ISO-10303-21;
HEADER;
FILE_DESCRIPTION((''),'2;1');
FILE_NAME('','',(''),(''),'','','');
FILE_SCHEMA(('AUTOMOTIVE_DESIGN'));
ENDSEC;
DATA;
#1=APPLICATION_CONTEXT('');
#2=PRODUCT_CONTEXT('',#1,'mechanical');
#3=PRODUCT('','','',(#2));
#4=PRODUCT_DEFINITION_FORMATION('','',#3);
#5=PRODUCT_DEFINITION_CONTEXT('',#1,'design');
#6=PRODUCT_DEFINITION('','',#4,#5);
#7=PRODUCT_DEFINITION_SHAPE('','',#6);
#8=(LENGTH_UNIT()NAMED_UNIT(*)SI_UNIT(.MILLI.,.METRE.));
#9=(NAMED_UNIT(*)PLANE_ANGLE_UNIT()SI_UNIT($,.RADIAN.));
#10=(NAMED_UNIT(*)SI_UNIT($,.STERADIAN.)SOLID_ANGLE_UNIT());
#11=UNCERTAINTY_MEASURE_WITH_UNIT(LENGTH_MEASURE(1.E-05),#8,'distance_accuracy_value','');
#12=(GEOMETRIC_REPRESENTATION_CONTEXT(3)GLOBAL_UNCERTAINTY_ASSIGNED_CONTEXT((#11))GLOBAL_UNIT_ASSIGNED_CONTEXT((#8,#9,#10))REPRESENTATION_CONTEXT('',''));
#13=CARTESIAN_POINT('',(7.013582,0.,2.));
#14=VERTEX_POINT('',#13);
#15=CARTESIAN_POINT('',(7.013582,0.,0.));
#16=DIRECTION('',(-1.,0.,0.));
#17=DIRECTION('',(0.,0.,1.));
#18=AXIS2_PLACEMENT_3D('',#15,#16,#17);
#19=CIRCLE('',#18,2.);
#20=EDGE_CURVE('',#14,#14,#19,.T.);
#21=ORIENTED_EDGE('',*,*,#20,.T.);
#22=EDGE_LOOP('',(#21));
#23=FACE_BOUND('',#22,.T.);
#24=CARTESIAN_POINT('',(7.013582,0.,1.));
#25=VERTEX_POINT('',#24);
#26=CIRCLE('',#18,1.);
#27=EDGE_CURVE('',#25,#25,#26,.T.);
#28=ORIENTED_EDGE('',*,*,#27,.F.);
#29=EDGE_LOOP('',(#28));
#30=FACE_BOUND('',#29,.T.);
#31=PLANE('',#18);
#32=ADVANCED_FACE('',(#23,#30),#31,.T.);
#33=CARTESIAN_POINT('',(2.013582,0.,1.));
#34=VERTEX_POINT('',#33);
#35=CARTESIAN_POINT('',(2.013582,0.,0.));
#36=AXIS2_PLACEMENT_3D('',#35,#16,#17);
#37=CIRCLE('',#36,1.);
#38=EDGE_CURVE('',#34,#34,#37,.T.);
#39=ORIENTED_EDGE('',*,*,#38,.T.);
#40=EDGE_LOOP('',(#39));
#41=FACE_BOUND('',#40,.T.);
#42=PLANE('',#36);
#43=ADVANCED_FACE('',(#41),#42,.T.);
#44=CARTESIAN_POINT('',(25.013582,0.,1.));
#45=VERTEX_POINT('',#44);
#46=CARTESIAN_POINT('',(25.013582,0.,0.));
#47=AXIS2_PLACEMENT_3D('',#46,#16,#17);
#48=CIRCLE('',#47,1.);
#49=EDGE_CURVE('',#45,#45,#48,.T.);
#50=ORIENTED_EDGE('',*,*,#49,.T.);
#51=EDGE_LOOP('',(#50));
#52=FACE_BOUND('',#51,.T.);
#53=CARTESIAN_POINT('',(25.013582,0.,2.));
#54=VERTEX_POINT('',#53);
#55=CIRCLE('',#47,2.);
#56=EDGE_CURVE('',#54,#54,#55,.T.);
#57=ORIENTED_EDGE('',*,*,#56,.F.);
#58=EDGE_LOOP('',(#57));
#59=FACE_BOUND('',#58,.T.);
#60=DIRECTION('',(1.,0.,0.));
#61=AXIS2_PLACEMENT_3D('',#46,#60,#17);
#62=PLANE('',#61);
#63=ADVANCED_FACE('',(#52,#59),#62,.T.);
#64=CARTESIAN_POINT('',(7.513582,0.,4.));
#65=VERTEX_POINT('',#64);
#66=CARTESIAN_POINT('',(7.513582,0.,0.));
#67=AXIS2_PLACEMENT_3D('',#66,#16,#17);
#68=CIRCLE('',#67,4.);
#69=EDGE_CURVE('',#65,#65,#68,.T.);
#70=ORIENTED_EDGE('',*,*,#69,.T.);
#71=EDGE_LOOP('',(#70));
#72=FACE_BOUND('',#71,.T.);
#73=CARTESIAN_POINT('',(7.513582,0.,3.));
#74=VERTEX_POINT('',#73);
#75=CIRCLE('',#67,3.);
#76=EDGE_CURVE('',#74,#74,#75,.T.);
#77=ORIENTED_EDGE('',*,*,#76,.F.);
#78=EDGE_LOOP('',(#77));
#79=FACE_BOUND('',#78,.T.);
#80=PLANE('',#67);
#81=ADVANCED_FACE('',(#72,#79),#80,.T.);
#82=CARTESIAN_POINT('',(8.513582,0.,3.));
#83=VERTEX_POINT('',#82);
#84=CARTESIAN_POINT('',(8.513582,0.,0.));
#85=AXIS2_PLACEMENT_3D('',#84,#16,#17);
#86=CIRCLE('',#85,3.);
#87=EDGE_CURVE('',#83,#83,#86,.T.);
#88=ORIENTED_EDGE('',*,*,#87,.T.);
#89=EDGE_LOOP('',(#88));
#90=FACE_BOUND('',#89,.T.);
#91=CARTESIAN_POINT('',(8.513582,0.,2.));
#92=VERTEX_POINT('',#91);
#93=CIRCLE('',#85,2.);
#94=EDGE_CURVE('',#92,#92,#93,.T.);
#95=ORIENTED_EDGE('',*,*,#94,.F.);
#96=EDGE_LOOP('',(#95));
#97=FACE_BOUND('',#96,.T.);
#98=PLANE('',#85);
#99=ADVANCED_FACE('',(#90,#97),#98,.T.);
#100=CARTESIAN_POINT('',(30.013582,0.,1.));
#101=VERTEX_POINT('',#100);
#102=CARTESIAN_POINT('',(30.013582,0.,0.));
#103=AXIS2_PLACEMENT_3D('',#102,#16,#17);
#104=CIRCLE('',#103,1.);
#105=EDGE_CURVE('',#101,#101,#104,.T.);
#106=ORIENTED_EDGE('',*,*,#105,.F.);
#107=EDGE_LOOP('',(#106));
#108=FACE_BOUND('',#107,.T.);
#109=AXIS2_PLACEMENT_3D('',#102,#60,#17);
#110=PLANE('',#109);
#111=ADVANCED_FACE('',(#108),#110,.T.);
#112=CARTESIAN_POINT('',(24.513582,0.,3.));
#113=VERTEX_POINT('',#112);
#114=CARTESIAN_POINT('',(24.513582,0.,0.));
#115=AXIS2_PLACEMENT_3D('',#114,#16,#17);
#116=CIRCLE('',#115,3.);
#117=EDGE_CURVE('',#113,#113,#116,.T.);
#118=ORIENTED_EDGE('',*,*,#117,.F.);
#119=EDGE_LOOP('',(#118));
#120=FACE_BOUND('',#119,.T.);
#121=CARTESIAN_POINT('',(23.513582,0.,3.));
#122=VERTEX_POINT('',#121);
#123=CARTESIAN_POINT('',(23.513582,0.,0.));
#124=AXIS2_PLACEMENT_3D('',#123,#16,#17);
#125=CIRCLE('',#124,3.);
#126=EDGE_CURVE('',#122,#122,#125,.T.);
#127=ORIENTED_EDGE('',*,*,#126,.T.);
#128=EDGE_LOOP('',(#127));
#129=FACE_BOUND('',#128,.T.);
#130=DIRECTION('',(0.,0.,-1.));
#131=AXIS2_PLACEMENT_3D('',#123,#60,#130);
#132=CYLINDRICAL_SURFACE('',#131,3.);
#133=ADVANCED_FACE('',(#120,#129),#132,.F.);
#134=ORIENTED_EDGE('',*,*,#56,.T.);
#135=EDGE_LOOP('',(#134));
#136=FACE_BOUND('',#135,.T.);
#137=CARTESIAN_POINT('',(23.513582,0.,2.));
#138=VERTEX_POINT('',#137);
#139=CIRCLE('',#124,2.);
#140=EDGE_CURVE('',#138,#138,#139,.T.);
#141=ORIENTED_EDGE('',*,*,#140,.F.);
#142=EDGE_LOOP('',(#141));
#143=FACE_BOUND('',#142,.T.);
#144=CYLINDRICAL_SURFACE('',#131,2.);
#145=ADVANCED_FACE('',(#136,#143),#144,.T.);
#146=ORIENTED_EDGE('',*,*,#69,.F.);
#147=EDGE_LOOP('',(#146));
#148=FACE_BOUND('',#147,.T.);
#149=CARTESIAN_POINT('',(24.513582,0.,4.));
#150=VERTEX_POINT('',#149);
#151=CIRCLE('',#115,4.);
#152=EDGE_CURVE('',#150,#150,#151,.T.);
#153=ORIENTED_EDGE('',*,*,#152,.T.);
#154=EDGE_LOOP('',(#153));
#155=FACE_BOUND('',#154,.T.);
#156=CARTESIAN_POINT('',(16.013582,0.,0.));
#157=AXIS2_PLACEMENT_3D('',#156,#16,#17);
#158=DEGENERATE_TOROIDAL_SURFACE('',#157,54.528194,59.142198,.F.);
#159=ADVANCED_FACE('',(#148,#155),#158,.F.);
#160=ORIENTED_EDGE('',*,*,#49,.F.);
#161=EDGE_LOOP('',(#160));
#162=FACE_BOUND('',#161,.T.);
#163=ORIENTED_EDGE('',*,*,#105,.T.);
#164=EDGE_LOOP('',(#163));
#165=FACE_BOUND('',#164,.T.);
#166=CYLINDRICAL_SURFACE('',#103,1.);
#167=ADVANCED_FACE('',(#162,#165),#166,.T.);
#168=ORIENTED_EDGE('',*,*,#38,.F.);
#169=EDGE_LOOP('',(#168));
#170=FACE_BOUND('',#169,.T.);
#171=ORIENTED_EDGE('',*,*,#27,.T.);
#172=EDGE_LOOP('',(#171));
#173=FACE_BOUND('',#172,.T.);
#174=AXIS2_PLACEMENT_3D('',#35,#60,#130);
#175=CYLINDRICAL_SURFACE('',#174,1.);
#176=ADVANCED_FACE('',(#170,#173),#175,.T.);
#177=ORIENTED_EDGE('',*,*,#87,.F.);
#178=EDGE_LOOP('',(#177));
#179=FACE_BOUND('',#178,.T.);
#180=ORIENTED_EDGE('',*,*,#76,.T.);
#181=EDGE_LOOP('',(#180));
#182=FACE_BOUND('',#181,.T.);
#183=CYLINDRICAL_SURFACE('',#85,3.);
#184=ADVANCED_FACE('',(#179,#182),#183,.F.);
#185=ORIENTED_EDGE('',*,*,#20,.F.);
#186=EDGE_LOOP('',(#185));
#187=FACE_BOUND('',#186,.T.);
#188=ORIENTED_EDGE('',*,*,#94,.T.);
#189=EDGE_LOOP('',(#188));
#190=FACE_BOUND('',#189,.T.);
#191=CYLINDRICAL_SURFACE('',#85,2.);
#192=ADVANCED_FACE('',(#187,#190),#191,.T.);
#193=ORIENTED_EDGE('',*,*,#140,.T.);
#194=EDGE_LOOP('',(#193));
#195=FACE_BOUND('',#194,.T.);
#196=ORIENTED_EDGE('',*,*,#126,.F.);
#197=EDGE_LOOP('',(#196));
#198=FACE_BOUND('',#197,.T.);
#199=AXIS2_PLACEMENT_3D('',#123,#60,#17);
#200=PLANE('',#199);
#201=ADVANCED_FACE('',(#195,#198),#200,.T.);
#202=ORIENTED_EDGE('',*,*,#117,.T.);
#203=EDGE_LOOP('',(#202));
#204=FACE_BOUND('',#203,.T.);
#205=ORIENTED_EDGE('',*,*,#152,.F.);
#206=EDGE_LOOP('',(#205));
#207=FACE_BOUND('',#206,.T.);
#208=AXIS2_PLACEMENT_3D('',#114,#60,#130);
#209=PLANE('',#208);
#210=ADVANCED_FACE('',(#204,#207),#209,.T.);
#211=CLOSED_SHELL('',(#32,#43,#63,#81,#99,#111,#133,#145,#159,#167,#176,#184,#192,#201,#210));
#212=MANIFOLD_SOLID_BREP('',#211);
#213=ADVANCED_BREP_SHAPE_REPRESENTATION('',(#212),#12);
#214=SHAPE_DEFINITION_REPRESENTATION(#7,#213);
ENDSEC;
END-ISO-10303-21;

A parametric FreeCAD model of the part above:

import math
import FreeCAD as App
import Part
import Sketcher

V = App.Vector

doc = App.newDocument("Part")
body = doc.addObject("PartDesign::Body", "Body")

# Sketch on XY plane
sketch1 = doc.addObject("Sketcher::SketchObject", "Sketch")
body.addObject(sketch1)
sketch1.AttachmentSupport = (doc.XY_Plane, [""])
sketch1.MapMode = "FlatFace"
sketch1.addGeometry([
    Part.LineSegment(V(7.5, 0, 0), V(7.5, -4, 0)),
    Part.ArcOfCircle(Part.Circle(V(16, 54.5, 0), V(0, 0, 1), 59.1), math.radians(-98.26), math.radians(-81.74)),
    Part.LineSegment(V(24.5, -4, 0), V(24.5, 0, 0)),
    Part.LineSegment(V(24.5, 0, 0), V(7.5, 0, 0)),
], False)
sketch1.addConstraint([
    Sketcher.Constraint("Coincident", 0, 2, 1, 1),
    Sketcher.Constraint("Coincident", 1, 2, 2, 1),
    Sketcher.Constraint("Coincident", 2, 2, 3, 1),
    Sketcher.Constraint("Coincident", 3, 2, 0, 1),
    Sketcher.Constraint("Vertical", 0),
    Sketcher.Constraint("Vertical", 2),
    Sketcher.Constraint("Horizontal", 3),
    Sketcher.Constraint("PointOnObject", 2, 2, -1),
    Sketcher.Constraint("Horizontal", 0, 2, 1, 2),
    Sketcher.Constraint("DistanceX", 3, 2, 3, 1, 17.0),
    Sketcher.Constraint("DistanceY", 0, 2, 0, 1, 4.0),
    Sketcher.Constraint("Radius", 1, 59.142198),
    Sketcher.Constraint("DistanceX", -1, 1, 1, 3, 16.013582),
])
revolution = doc.addObject("PartDesign::Revolution", "Revolution")
body.addObject(revolution)
revolution.Profile = sketch1
revolution.ReferenceAxis = (sketch1, ["H_Axis"])
revolution.Angle = 360

# Sketch on YZ plane
sketch2 = doc.addObject("Sketcher::SketchObject", "Sketch001")
body.addObject(sketch2)
sketch2.AttachmentSupport = (doc.YZ_Plane, [""])
sketch2.MapMode = "FlatFace"
sketch2.AttachmentOffset = App.Placement(V(0, 0, 7.513582), App.Rotation())
sketch2.addGeometry([
    Part.Circle(V(0, 0, 0), V(0, 0, 1), 3),
    Part.Circle(V(0, 0, 0), V(0, 0, 1), 2),
], False)
sketch2.addConstraint([
    Sketcher.Constraint("Coincident", 0, 3, -1, 1),
    Sketcher.Constraint("Coincident", 1, 3, -1, 1),
    Sketcher.Constraint("Diameter", 0, 6.0),
    Sketcher.Constraint("Diameter", 1, 4.0),
])
pocket1 = doc.addObject("PartDesign::Pocket", "Pocket")
body.addObject(pocket1)
pocket1.Profile = sketch2
pocket1.Length = 1
pocket1.Reversed = True

# Sketch on YZ plane
sketch3 = doc.addObject("Sketcher::SketchObject", "Sketch002")
body.addObject(sketch3)
sketch3.AttachmentSupport = (doc.YZ_Plane, [""])
sketch3.MapMode = "FlatFace"
sketch3.AttachmentOffset = App.Placement(V(0, 0, 7.513582), App.Rotation())
sketch3.addGeometry(Part.Circle(V(0, 0, 0), V(0, 0, 1), 2), False)
sketch3.addConstraint([
    Sketcher.Constraint("Coincident", 0, 3, -1, 1),
    Sketcher.Constraint("Diameter", 0, 4.0),
])
pad1 = doc.addObject("PartDesign::Pad", "Pad")
body.addObject(pad1)
pad1.Profile = sketch3
pad1.Length = 0.5
pad1.Reversed = True

# Sketch on YZ plane
sketch4 = doc.addObject("Sketcher::SketchObject", "Sketch003")
body.addObject(sketch4)
sketch4.AttachmentSupport = (doc.YZ_Plane, [""])
sketch4.MapMode = "FlatFace"
sketch4.AttachmentOffset = App.Placement(V(0, 0, 7.013582), App.Rotation())
sketch4.addGeometry(Part.Circle(V(0, 0, 0), V(0, 0, 1), 1), False)
sketch4.addConstraint([
    Sketcher.Constraint("Coincident", 0, 3, -1, 1),
    Sketcher.Constraint("Diameter", 0, 2.0),
])
pad2 = doc.addObject("PartDesign::Pad", "Pad001")
body.addObject(pad2)
pad2.Profile = sketch4
pad2.Length = 5
pad2.Reversed = True
doc.recompute()

datumplane = doc.addObject("PartDesign::Plane", "DatumPlane")
body.addObject(datumplane)
datumplane.AttachmentSupport = (doc.YZ_Plane, [""])
datumplane.MapMode = "FlatFace"
datumplane.AttachmentOffset = App.Placement(V(0, 0, 16.013582), App.Rotation())
mirrored = doc.addObject("PartDesign::Mirrored", "Mirrored")
body.addObject(mirrored)
mirrored.Originals = [pocket1, pad1, pad2]
mirrored.MirrorPlane = (datumplane, [""])
body.Tip = mirrored

doc.recompute()
